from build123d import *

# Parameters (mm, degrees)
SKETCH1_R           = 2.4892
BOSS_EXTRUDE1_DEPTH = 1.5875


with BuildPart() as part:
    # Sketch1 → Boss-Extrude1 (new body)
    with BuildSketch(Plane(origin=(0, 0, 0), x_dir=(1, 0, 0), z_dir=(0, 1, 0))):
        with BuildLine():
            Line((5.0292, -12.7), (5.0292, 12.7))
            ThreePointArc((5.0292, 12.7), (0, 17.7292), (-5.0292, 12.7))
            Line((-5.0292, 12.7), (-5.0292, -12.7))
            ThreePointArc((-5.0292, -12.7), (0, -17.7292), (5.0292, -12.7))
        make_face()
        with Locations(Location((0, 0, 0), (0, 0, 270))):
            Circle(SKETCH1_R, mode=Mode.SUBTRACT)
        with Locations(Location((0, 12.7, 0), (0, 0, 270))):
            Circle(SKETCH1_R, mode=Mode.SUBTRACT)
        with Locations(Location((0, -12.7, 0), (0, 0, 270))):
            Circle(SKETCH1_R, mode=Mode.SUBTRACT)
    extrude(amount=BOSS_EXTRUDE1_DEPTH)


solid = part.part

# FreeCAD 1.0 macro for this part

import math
import FreeCAD as App
import Part
import Sketcher
from FreeCAD import Vector
Q = App.Units.Quantity

doc = App.newDocument("Part")
body = doc.addObject("PartDesign::Body", "Body")

sketch1 = body.newObject("Sketcher::SketchObject", "Sketch")
sketch1.AttachmentSupport = (doc.getObject("XZ_Plane"), [""])
sketch1.MapMode = "FlatFace"
sketch1.addGeometry([
    Part.LineSegment(Vector(5, 12.7, 0), Vector(5, -12.7, 0)),
    Part.ArcOfCircle(Part.Circle(Vector(0, -12.7, 0), Vector(0, 0, 1), 5), math.radians(180), math.radians(360)),
    Part.LineSegment(Vector(-5, -12.7, 0), Vector(-5, 12.7, 0)),
    Part.ArcOfCircle(Part.Circle(Vector(0, 12.7, 0), Vector(0, 0, 1), 5), math.radians(0), math.radians(180)),
    Part.Circle(Vector(0, 12.7, 0), Vector(0, 0, 1), 2.5),
    Part.Circle(Vector(0, 0, 0), Vector(0, 0, 1), 2.5),
    Part.Circle(Vector(0, -12.7, 0), Vector(0, 0, 1), 2.5),
], False)
sketch1.addConstraint([
    Sketcher.Constraint("Tangent", 0, 2, 1, 2),
    Sketcher.Constraint("Tangent", 1, 1, 2, 1),
    Sketcher.Constraint("Tangent", 2, 2, 3, 2),
    Sketcher.Constraint("Tangent", 3, 1, 0, 1),
    Sketcher.Constraint("Vertical", 0),
    Sketcher.Constraint("Vertical", 2),
    Sketcher.Constraint("Coincident", 5, 3, -1, 1),
    Sketcher.Constraint("Coincident", 4, 3, 3, 3),
    Sketcher.Constraint("Coincident", 6, 3, 1, 3),
    Sketcher.Constraint("Equal", 4, 5),
    Sketcher.Constraint("Equal", 5, 6),
    Sketcher.Constraint("Symmetric", 1, 3, 3, 3, -1, 1),
    Sketcher.Constraint("DistanceY", 0, 2, 0, 1, Q("1 in")),
    Sketcher.Constraint("Diameter", 4, Q("0.196 in")),
    Sketcher.Constraint("Radius", 1, Q("0.198 in")),
])
pad1 = body.newObject("PartDesign::Pad", "Pad")
pad1.Profile = sketch1
pad1.Length = Q("0.0625 in")
pad1.Reversed = True

doc.recompute()
